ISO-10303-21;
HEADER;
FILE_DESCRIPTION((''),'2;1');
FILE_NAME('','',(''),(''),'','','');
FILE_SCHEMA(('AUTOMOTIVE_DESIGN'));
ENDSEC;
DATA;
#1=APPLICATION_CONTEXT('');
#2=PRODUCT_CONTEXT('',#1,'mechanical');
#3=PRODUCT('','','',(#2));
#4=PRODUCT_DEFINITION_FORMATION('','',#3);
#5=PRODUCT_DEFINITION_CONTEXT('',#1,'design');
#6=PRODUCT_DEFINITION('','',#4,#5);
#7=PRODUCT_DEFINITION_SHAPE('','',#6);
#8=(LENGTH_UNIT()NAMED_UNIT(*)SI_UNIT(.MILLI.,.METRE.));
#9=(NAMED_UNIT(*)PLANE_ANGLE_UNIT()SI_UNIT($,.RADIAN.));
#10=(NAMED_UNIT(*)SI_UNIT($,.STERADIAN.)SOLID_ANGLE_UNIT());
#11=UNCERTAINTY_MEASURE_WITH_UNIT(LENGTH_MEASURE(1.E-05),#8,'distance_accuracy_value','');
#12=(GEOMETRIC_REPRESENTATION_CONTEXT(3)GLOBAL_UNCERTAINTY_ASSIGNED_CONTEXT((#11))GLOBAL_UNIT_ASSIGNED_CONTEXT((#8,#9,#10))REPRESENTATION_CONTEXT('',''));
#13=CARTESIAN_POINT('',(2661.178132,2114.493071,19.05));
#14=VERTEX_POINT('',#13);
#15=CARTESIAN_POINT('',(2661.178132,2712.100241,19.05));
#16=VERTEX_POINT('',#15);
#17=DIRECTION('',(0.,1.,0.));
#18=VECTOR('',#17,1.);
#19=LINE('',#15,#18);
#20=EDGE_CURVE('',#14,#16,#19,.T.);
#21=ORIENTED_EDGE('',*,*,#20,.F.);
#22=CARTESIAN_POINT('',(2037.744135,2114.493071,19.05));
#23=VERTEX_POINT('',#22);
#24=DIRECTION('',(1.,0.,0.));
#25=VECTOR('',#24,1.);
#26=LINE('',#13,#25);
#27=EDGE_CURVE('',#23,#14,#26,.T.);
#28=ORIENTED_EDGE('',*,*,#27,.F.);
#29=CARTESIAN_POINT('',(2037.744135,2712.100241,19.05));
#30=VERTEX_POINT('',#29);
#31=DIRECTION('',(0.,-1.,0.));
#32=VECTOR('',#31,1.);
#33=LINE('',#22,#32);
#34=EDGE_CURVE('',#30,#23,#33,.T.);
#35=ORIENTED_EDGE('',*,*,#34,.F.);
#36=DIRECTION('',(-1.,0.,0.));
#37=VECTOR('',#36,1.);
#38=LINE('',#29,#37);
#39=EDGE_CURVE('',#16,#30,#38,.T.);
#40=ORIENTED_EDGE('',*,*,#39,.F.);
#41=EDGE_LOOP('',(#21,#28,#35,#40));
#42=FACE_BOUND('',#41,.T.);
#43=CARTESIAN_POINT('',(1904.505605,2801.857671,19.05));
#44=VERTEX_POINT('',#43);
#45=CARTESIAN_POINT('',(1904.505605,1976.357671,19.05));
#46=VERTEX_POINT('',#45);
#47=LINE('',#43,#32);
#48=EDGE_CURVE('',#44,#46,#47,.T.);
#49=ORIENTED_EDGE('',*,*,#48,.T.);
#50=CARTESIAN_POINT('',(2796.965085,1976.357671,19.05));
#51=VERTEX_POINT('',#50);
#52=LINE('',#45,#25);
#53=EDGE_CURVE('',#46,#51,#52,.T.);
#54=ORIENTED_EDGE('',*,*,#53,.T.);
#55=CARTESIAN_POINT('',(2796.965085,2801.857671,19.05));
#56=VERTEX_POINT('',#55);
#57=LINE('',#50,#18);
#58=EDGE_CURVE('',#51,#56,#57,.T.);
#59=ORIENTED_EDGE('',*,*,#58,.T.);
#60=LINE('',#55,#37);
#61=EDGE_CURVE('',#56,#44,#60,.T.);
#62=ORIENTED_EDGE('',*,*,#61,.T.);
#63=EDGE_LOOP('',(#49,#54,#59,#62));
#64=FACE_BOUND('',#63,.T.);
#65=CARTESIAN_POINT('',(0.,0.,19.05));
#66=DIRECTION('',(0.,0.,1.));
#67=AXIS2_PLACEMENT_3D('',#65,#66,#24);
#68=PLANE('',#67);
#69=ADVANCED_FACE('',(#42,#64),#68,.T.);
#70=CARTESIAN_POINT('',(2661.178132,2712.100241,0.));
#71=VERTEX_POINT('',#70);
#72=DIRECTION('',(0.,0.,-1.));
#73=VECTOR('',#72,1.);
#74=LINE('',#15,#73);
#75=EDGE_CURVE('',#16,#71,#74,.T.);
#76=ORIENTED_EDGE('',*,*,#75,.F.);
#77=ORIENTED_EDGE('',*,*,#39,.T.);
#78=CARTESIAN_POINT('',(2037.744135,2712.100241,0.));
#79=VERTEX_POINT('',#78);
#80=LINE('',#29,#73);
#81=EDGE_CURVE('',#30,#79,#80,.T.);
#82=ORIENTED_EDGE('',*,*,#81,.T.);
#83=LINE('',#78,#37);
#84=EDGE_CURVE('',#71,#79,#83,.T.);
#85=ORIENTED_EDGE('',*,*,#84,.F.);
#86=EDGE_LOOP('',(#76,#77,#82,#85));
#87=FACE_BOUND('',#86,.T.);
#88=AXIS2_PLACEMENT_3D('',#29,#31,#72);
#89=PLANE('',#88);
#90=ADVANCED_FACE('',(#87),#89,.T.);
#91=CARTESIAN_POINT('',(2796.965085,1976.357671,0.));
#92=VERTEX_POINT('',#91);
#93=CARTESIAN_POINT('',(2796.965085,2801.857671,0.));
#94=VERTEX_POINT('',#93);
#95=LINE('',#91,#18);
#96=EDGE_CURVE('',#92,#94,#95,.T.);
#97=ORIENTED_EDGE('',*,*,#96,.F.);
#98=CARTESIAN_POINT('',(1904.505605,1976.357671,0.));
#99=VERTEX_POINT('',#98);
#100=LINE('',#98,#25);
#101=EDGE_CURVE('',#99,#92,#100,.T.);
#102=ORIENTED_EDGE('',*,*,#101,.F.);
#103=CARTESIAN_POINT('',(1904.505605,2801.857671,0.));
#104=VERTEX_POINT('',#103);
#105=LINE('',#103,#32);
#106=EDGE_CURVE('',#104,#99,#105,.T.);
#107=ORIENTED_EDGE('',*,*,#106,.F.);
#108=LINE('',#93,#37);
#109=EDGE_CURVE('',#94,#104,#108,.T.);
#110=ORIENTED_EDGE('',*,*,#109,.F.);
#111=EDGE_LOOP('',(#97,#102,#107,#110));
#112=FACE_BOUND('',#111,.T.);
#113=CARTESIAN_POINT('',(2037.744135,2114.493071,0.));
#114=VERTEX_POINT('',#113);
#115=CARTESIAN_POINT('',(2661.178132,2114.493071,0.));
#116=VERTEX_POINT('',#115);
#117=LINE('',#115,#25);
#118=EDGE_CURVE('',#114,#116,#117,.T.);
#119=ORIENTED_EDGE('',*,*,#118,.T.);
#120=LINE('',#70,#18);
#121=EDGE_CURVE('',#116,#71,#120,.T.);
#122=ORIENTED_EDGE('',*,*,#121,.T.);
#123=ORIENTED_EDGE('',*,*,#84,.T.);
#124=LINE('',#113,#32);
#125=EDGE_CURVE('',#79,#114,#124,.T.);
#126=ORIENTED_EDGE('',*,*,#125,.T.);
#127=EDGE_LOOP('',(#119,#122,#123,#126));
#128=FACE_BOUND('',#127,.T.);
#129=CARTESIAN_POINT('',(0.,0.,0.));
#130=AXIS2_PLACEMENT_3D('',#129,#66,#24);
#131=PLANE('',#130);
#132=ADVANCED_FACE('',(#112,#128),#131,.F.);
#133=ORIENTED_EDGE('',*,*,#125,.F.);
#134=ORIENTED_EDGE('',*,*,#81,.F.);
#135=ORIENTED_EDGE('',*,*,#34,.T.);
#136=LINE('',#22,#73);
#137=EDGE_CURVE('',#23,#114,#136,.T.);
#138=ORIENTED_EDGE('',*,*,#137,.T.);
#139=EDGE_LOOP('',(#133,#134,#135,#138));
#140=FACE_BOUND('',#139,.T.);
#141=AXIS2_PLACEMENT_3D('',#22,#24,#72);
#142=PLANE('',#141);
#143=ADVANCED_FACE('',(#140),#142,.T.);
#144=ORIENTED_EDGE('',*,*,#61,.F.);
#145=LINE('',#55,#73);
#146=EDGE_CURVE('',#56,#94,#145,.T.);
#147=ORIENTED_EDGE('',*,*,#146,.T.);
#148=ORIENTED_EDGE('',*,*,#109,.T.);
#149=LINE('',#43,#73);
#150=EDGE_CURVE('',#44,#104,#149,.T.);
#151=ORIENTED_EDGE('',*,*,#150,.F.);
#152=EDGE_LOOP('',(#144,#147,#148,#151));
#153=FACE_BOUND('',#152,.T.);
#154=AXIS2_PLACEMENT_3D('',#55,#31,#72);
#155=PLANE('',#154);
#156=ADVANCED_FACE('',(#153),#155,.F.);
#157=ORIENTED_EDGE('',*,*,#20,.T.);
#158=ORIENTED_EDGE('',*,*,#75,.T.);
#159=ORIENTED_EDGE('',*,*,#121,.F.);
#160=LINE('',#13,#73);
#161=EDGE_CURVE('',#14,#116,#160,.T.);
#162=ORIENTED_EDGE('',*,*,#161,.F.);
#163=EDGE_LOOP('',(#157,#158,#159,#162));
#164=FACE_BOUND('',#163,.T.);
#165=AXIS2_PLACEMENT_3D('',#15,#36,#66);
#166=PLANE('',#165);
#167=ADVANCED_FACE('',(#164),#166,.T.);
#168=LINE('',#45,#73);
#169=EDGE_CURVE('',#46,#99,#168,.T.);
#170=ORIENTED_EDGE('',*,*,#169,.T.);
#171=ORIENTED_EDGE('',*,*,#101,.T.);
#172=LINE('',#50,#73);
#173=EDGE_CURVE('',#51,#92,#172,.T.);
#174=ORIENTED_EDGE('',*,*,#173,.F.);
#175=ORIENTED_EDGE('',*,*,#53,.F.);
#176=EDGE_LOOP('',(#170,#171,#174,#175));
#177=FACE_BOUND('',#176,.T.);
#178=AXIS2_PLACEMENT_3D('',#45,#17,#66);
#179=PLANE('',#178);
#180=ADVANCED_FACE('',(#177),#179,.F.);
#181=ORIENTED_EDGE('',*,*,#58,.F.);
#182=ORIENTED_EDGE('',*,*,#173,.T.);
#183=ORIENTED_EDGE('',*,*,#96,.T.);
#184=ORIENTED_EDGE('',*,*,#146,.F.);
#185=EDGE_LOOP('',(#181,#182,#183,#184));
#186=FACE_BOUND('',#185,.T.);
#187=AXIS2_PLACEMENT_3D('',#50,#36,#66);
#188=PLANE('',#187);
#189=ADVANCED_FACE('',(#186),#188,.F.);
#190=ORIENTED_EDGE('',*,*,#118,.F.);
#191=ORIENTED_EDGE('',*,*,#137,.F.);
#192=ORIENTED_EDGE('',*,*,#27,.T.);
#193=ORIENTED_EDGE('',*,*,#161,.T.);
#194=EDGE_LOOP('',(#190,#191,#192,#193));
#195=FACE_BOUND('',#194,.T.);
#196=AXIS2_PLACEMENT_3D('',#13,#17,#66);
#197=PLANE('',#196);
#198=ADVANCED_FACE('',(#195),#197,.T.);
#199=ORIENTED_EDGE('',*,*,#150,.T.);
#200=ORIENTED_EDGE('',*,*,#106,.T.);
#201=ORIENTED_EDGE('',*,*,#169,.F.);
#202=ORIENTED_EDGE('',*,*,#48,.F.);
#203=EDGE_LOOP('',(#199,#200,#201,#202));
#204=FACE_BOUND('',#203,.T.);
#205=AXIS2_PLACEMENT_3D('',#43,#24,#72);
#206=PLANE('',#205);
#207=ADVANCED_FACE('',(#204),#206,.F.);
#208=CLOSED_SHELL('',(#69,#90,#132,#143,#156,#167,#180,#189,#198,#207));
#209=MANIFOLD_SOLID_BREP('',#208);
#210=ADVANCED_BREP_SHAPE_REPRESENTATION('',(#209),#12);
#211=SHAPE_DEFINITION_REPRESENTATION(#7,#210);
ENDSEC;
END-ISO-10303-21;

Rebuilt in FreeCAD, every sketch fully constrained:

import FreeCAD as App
import Part
import Sketcher
Q = App.Units.Quantity


def add_polygon(sketch, points):
    """Adds a closed chain of lines whose ends are joined by coincident constraints."""
    first, n = sketch.GeometryCount, len(points)
    for a, b in zip(points, points[1:] + points[:1]):
        sketch.addGeometry(Part.LineSegment(App.Vector(*a, 0), App.Vector(*b, 0)), False)
    for i in range(n):
        sketch.addConstraint(Sketcher.Constraint("Coincident", first + i, 2, first + (i + 1) % n, 1))

doc = App.newDocument("Part")
body = doc.addObject("PartDesign::Body", "Body")

# Sketch on XY plane
sketch1 = body.newObject("Sketcher::SketchObject", "Sketch")
sketch1.AttachmentSupport = (doc.getObject("XY_Plane"), [""])
sketch1.MapMode = "FlatFace"
add_polygon(sketch1, [(1905, 2802), (1905, 1976), (2797, 1976), (2797, 2802)])  # lines 0-3
add_polygon(sketch1, [(2661, 2114), (2038, 2114), (2038, 2712), (2661, 2712)])  # lines 4-7
sketch1.addConstraint([
    Sketcher.Constraint("Vertical", 0),
    Sketcher.Constraint("Horizontal", 1),
    Sketcher.Constraint("Vertical", 2),
    Sketcher.Constraint("Horizontal", 3),
    Sketcher.Constraint("Horizontal", 4),
    Sketcher.Constraint("Vertical", 5),
    Sketcher.Constraint("Horizontal", 6),
    Sketcher.Constraint("Vertical", 7),
    Sketcher.Constraint("DistanceY", 0, 2, 0, 1, Q("32.5 in")),
    Sketcher.Constraint("DistanceX", 1, 1, 1, 2, Q("35.1362 in")),
    Sketcher.Constraint("DistanceY", -1, 1, 5, 2, Q("106.7756 in")),
    Sketcher.Constraint("DistanceY", 5, 1, 5, 2, 597.607171),
    Sketcher.Constraint("DistanceY", 0, 2, 4, 2, 138.1354),
    Sketcher.Constraint("DistanceX", 4, 2, 4, 1, 623.433997),
    Sketcher.Constraint("DistanceX", 0, 2, 4, 2, 133.23853),
    Sketcher.Constraint("DistanceX", -1, 1, 0, 2, 1904.505605),
])
pad1 = body.newObject("PartDesign::Pad", "Pad")
pad1.Profile = sketch1
pad1.Length = Q("0.75 in")

doc.recompute()
